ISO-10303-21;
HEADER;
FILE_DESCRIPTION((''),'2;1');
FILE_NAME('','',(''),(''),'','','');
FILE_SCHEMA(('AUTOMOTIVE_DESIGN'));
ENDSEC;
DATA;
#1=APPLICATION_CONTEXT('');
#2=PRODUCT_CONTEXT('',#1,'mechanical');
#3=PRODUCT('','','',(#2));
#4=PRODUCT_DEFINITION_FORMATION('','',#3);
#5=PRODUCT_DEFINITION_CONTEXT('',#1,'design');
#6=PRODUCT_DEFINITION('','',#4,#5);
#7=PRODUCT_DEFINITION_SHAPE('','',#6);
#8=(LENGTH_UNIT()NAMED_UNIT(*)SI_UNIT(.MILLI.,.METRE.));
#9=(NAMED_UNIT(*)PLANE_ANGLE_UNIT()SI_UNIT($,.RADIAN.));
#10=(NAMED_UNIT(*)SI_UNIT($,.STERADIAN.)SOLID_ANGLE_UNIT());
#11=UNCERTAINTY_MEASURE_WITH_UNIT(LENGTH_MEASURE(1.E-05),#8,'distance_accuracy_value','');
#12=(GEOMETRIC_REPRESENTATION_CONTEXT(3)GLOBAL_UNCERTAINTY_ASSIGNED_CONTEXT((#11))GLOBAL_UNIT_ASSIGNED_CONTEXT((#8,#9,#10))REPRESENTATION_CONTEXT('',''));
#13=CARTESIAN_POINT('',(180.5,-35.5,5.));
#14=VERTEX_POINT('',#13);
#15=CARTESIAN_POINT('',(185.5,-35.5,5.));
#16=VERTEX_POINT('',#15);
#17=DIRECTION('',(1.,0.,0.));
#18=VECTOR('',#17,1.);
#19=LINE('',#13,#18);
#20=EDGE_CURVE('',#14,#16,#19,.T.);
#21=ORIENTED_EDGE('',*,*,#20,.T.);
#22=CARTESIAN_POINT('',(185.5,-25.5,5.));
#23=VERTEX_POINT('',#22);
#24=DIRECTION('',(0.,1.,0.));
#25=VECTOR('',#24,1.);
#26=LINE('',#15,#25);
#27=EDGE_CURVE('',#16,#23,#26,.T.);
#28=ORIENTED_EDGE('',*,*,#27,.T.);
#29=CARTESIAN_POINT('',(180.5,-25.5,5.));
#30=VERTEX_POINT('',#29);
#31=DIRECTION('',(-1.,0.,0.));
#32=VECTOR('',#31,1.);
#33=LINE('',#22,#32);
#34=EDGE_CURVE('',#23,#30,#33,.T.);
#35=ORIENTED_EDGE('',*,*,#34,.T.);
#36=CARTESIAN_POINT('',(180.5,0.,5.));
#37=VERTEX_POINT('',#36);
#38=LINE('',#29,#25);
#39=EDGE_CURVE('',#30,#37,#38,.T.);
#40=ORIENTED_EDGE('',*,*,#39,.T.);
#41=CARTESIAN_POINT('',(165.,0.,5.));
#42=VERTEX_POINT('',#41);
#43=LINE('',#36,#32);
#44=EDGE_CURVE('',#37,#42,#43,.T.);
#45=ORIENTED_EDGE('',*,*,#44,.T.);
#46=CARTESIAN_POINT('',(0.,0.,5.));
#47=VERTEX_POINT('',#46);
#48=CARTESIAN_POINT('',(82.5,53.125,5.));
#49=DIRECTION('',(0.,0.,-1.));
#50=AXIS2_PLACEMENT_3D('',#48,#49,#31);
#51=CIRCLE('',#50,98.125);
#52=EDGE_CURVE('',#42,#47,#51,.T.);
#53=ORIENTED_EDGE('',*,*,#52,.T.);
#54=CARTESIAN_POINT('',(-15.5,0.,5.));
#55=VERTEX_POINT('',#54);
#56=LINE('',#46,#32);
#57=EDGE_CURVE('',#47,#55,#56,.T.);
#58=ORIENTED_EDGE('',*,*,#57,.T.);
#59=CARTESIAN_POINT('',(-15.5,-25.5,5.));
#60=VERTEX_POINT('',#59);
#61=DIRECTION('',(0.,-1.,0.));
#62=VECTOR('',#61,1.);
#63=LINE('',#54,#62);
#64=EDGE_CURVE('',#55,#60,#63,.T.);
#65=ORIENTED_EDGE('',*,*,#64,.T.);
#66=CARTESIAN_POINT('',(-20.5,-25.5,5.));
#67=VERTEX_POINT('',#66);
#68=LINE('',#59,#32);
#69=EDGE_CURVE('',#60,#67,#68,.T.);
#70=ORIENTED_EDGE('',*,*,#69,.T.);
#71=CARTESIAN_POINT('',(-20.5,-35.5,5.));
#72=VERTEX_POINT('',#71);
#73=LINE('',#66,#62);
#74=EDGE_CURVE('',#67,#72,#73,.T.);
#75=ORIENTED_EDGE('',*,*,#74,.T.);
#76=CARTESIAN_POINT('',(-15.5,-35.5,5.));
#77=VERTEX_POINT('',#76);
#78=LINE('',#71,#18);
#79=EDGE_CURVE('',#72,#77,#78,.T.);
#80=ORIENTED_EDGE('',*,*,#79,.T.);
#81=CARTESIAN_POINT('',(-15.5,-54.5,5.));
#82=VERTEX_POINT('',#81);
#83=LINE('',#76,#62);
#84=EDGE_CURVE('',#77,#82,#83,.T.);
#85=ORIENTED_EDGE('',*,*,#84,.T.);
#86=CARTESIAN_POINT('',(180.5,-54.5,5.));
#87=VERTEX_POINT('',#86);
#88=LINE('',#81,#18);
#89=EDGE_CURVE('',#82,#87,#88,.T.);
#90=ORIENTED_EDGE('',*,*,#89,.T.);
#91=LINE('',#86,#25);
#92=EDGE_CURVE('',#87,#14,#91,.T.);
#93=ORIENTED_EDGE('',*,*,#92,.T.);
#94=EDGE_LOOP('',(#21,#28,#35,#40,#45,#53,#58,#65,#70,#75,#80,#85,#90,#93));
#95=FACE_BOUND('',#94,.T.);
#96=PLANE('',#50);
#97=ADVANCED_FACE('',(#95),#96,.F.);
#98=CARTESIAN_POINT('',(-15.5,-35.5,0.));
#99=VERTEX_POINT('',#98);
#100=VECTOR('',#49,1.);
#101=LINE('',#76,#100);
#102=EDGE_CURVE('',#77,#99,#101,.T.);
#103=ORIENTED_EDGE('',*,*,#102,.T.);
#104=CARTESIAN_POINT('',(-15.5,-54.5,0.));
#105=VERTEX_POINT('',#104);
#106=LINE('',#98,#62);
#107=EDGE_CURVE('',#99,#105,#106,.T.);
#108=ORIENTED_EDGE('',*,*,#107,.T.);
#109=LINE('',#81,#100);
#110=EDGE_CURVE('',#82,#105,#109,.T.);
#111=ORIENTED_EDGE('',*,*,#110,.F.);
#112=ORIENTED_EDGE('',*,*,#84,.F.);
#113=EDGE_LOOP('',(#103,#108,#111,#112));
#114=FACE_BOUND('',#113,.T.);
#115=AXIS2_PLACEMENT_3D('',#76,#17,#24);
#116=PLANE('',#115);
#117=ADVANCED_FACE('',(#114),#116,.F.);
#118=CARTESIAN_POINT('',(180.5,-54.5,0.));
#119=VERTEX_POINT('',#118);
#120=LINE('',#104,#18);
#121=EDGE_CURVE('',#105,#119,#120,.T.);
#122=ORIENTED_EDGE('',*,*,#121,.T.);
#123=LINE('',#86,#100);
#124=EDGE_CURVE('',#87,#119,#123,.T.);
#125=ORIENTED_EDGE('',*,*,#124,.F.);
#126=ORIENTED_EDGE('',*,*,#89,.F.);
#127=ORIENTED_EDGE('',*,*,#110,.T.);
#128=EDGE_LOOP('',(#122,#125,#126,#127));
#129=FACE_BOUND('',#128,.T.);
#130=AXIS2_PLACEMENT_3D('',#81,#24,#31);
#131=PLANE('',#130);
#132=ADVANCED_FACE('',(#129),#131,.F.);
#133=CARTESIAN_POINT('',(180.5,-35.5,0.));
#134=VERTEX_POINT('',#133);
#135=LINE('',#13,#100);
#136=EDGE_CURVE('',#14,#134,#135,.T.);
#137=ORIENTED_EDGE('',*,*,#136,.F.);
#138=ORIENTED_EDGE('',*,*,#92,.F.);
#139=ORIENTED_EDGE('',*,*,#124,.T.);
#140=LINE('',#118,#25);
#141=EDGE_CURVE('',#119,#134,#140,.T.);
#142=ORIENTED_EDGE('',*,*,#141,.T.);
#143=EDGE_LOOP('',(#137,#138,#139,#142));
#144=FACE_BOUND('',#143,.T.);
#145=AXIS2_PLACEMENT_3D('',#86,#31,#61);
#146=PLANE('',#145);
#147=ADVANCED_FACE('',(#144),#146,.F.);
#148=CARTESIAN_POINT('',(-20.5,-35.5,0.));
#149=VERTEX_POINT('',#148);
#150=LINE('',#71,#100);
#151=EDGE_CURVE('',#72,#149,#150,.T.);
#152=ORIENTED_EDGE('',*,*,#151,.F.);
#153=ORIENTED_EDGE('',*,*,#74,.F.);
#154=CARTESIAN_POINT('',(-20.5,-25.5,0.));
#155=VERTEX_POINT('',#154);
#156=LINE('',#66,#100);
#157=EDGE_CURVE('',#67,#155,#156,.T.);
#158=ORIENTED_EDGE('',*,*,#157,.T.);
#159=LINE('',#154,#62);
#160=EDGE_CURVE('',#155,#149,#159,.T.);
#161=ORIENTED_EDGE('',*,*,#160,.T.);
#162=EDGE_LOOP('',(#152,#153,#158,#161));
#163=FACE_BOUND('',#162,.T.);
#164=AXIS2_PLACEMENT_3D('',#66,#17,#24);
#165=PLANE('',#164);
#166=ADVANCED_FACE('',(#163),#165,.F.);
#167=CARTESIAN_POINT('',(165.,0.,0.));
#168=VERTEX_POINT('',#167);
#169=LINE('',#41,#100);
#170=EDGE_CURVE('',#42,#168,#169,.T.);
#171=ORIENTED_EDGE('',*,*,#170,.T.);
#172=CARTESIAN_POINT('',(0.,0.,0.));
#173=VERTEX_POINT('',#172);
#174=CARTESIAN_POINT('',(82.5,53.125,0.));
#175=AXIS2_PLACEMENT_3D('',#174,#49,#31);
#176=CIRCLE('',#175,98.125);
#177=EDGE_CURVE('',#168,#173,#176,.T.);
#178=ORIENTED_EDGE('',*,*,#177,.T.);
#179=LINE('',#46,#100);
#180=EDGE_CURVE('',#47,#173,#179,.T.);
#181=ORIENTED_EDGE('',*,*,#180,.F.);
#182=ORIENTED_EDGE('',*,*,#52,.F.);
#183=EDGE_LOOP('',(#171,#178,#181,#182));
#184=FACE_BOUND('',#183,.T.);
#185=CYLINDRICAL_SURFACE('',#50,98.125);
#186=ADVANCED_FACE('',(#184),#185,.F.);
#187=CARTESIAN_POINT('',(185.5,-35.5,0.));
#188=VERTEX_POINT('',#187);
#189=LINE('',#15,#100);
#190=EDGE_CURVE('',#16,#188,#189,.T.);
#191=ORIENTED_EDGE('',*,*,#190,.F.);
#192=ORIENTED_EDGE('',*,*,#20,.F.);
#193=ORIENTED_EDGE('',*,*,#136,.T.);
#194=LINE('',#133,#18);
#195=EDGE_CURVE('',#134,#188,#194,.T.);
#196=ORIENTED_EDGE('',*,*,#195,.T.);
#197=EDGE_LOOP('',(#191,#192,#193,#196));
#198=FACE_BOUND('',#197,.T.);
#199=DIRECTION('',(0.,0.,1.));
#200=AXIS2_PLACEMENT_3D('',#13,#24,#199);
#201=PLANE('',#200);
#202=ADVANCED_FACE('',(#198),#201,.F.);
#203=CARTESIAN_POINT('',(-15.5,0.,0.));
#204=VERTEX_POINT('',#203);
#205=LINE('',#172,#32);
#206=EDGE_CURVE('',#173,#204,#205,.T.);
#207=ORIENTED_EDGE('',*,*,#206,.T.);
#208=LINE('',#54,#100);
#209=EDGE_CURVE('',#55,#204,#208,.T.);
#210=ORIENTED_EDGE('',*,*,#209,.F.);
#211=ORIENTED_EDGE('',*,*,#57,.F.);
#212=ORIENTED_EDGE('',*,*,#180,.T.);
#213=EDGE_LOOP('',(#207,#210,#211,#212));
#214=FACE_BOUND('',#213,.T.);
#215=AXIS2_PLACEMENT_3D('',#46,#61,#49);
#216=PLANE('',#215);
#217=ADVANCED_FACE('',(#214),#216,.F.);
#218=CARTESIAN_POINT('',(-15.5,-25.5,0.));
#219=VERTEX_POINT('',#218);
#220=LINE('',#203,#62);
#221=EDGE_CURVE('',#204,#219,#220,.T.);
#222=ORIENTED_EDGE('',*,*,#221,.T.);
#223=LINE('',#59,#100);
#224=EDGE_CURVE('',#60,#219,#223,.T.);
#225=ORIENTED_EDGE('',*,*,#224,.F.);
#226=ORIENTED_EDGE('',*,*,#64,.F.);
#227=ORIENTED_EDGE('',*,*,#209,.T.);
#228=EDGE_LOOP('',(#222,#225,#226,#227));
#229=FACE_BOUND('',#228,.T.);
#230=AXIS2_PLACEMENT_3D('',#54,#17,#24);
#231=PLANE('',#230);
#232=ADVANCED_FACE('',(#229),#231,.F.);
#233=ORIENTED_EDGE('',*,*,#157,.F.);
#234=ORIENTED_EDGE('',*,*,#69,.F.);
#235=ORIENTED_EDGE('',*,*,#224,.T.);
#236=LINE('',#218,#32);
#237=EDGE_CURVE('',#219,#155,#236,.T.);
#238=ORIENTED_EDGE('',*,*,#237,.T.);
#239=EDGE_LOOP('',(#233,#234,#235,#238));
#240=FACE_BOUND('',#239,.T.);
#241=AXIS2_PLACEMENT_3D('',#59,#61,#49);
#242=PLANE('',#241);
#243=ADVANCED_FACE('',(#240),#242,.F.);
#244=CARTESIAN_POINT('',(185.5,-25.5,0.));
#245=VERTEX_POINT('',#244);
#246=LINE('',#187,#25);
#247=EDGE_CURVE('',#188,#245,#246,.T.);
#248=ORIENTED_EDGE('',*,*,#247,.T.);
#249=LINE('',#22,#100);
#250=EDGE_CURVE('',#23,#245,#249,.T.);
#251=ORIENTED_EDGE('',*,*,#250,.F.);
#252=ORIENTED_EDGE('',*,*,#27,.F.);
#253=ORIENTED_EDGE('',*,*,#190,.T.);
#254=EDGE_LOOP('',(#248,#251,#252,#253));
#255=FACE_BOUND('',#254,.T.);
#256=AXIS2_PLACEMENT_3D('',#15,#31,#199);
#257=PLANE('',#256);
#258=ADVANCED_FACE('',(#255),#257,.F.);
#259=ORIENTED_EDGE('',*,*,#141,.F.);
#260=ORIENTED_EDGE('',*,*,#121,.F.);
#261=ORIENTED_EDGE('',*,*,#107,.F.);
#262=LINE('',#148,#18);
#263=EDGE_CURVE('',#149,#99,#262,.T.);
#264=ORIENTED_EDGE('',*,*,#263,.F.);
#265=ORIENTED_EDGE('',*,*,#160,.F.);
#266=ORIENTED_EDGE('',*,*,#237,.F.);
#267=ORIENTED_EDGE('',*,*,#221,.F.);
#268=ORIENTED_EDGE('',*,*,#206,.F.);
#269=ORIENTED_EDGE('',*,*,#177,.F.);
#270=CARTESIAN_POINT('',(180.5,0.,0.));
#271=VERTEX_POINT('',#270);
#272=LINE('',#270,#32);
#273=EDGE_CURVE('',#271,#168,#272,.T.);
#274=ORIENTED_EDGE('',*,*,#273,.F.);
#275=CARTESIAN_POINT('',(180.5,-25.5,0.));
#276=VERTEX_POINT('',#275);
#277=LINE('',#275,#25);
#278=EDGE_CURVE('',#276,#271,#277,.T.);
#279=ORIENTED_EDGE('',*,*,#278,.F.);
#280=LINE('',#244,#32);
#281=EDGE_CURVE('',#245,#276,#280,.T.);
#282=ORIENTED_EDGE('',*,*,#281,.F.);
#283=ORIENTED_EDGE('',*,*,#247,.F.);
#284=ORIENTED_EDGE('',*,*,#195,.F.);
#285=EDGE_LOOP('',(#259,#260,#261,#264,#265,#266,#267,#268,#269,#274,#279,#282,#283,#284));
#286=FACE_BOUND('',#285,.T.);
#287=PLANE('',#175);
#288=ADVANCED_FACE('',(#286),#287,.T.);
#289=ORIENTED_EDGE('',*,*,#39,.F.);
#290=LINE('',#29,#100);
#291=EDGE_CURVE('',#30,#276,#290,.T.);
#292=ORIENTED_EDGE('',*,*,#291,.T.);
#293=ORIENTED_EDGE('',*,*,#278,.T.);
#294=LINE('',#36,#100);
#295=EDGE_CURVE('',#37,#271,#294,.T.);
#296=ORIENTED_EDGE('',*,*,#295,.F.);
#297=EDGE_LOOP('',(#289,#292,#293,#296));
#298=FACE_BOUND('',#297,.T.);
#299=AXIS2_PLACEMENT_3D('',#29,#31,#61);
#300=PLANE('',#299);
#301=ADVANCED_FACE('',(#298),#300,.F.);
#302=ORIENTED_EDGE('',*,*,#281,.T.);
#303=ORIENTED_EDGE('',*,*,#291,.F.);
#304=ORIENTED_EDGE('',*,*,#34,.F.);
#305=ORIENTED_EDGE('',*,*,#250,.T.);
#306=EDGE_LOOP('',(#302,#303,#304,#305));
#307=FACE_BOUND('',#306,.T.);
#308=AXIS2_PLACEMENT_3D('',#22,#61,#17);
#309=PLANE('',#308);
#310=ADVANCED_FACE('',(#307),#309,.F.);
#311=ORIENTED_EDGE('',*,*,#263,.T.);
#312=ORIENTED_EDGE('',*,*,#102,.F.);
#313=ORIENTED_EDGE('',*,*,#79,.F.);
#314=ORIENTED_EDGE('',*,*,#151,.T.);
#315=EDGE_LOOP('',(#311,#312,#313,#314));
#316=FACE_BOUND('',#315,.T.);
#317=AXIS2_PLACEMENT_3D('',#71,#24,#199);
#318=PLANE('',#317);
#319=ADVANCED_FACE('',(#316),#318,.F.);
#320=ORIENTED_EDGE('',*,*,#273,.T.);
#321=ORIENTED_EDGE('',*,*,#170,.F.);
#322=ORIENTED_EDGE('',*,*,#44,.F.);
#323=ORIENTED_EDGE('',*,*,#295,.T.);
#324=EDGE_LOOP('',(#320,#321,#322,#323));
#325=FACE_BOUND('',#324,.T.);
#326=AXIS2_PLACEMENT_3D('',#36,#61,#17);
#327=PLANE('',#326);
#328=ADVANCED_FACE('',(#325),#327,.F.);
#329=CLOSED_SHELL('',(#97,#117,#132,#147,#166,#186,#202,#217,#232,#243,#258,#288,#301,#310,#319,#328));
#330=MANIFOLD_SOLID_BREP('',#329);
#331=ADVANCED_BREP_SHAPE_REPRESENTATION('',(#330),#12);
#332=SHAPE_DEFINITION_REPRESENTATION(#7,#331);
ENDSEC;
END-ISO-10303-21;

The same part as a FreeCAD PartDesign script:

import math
import FreeCAD as App
import Part
import Sketcher
Q = App.Units.Quantity

doc = App.newDocument("Part")
params = doc.addObject("Spreadsheet::Sheet", "Params")
for row, (alias, value) in enumerate([
    ("sketch1_width", "5 mm"),
    ("sketch1_width2", "196 mm"),
    ("sketch1_height", "10 mm"),
    ("sketch1_height2", "19 mm"),
    ("sketch1_width3", "15.5 mm"),
    ("pad1_length", "5 mm"),
], start=1):
    params.set(f"A{row}", alias)
    params.set(f"B{row}", "=" + value)
    params.setAlias(f"B{row}", alias)

body = doc.addObject("PartDesign::Body", "Body")

# Sketch on XY plane
sketch1 = doc.addObject("Sketcher::SketchObject", "Sketch")
body.addObject(sketch1)
sketch1.AttachmentSupport = (doc.XY_Plane, [""])
sketch1.MapMode = "FlatFace"
sketch1.addGeometry([
    Part.LineSegment(App.Vector(0, 0, 0), App.Vector(-16, 0, 0)),  # 0
    Part.LineSegment(App.Vector(-16, 0, 0), App.Vector(-16, -26, 0)),  # 1
    Part.LineSegment(App.Vector(-16, -26, 0), App.Vector(-20, -26, 0)),  # 2
    Part.LineSegment(App.Vector(-20, -26, 0), App.Vector(-20, -36, 0)),  # 3
    Part.LineSegment(App.Vector(-20, -36, 0), App.Vector(-16, -36, 0)),  # 4
    Part.LineSegment(App.Vector(-16, -36, 0), App.Vector(-16, -54, 0)),  # 5
    Part.LineSegment(App.Vector(-16, -54, 0), App.Vector(180, -54, 0)),  # 6
    Part.LineSegment(App.Vector(180, -54, 0), App.Vector(180, -36, 0)),  # 7
    Part.LineSegment(App.Vector(180, -36, 0), App.Vector(186, -36, 0)),  # 8
    Part.LineSegment(App.Vector(186, -36, 0), App.Vector(186, -26, 0)),  # 9
    Part.LineSegment(App.Vector(186, -26, 0), App.Vector(180, -26, 0)),  # 10
    Part.LineSegment(App.Vector(180, -26, 0), App.Vector(180, 0, 0)),  # 11
    Part.LineSegment(App.Vector(180, 0, 0), App.Vector(165, 0, 0)),  # 12
    Part.ArcOfCircle(Part.Circle(App.Vector(82, 53, 0), App.Vector(0, 0, 1), 98), math.radians(-147), math.radians(-33)),  # 13
], False)
sketch1.addConstraint([
    Sketcher.Constraint("Coincident", 0, 2, 1, 1),
    Sketcher.Constraint("Coincident", 1, 2, 2, 1),
    Sketcher.Constraint("Coincident", 2, 2, 3, 1),
    Sketcher.Constraint("Coincident", 3, 2, 4, 1),
    Sketcher.Constraint("Coincident", 4, 2, 5, 1),
    Sketcher.Constraint("Coincident", 5, 2, 6, 1),
    Sketcher.Constraint("Coincident", 6, 2, 7, 1),
    Sketcher.Constraint("Coincident", 7, 2, 8, 1),
    Sketcher.Constraint("Coincident", 8, 2, 9, 1),
    Sketcher.Constraint("Coincident", 9, 2, 10, 1),
    Sketcher.Constraint("Coincident", 10, 2, 11, 1),
    Sketcher.Constraint("Coincident", 11, 2, 12, 1),
    Sketcher.Constraint("Coincident", 12, 2, 13, 2),
    Sketcher.Constraint("Coincident", 13, 1, 0, 1),
    Sketcher.Constraint("Horizontal", 0),
    Sketcher.Constraint("Vertical", 1),
    Sketcher.Constraint("Horizontal", 2),
    Sketcher.Constraint("Vertical", 3),
    Sketcher.Constraint("Horizontal", 4),
    Sketcher.Constraint("Vertical", 5),
    Sketcher.Constraint("Horizontal", 6),
    Sketcher.Constraint("Vertical", 7),
    Sketcher.Constraint("Horizontal", 8),
    Sketcher.Constraint("Vertical", 9),
    Sketcher.Constraint("Horizontal", 10),
    Sketcher.Constraint("Vertical", 11),
    Sketcher.Constraint("Horizontal", 12),
    Sketcher.Constraint("Coincident", 13, 1, -1, 1),
    Sketcher.Constraint("PointOnObject", 11, 2, -1),
    Sketcher.Constraint("Horizontal", 4, 2, 7, 2),
    Sketcher.Constraint("Horizontal", 2, 2, 9, 2),
    Sketcher.Constraint("Vertical", 1, 2, 4, 2),
    Sketcher.Constraint("Vertical", 7, 2, 10, 2),
    Sketcher.Constraint("Equal", 4, 8),
    Sketcher.Constraint("Equal", 0, 12),
    Sketcher.Constraint("DistanceX", 2, 2, 2, 1, Q("5 mm")),
    Sketcher.Constraint("DistanceX", 6, 1, 6, 2, Q("196 mm")),
    Sketcher.Constraint("DistanceY", 3, 2, 3, 1, Q("10 mm")),
    Sketcher.Constraint("DistanceY", 5, 2, 5, 1, Q("19 mm")),
    Sketcher.Constraint("DistanceX", 0, 2, 0, 1, Q("15.5 mm")),
    Sketcher.Constraint("DistanceY", 1, 2, 1, 1, Q("25.5 mm")),
    Sketcher.Constraint("Radius", 13, Q("98.125 mm")),
])
sketch1.setExpression("Constraints[35]", "Params.sketch1_width")
sketch1.setExpression("Constraints[36]", "Params.sketch1_width2")
sketch1.setExpression("Constraints[37]", "Params.sketch1_height")
sketch1.setExpression("Constraints[38]", "Params.sketch1_height2")
sketch1.setExpression("Constraints[39]", "Params.sketch1_width3")
pad1 = doc.addObject("PartDesign::Pad", "Pad")
body.addObject(pad1)
pad1.Profile = sketch1
pad1.setExpression("Length", "Params.pad1_length")

doc.recompute()
